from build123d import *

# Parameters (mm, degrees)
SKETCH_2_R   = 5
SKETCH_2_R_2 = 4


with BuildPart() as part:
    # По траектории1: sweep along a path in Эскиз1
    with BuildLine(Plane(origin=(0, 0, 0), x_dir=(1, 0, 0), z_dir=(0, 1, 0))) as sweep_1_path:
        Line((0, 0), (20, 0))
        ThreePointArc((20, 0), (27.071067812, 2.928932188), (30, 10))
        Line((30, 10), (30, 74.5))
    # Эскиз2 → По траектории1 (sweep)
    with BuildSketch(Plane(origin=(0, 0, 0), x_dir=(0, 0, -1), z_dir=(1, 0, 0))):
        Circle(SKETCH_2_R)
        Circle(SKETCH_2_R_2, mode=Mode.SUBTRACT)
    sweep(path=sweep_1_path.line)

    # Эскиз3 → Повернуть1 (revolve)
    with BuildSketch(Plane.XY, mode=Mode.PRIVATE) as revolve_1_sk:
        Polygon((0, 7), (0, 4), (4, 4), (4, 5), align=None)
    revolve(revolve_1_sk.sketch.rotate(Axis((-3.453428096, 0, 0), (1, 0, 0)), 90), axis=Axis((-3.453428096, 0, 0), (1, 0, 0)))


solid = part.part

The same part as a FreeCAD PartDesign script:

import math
import FreeCAD as App
import Part
import Sketcher
from FreeCAD import Vector


def add_polygon(sketch, points):
    """Adds a closed chain of lines whose ends are joined by coincident constraints."""
    first, n = sketch.GeometryCount, len(points)
    for a, b in zip(points, points[1:] + points[:1]):
        sketch.addGeometry(Part.LineSegment(App.Vector(*a, 0), App.Vector(*b, 0)), False)
    for i in range(n):
        sketch.addConstraint(Sketcher.Constraint("Coincident", first + i, 2, first + (i + 1) % n, 1))

doc = App.newDocument("Part")
params = doc.addObject("Spreadsheet::Sheet", "Params")
for row, (alias, value) in enumerate([
    ("sketch1_diameter", "10 mm"),
    ("sketch1_diameter2", "8 mm"),
    ("sketch2_radius", "10 mm"),
    ("sketch2_width", "20 mm"),
    ("sketch2_height", "64.5 mm"),
    ("sketch3_width", "4 mm"),
    ("sketch3_height", "3 mm"),
    ("sketch3_height2", "1 mm"),
    ("revolution_angle", "360 deg"),
], start=1):
    params.set(f"A{row}", alias)
    params.set(f"B{row}", "=" + value)
    params.setAlias(f"B{row}", alias)

body = doc.addObject("PartDesign::Body", "Body")

# Sketch on YZ plane
sketch1 = body.newObject("Sketcher::SketchObject", "Sketch")
sketch1.AttachmentSupport = (doc.getObject("YZ_Plane"), [""])
sketch1.MapMode = "FlatFace"
sketch1.addGeometry([
    Part.Circle(Vector(0, 0, 0), Vector(0, 0, 1), 5),
    Part.Circle(Vector(0, 0, 0), Vector(0, 0, 1), 4),
], False)
sketch1.addConstraint([
    Sketcher.Constraint("Coincident", 0, 3, -1, 1),
    Sketcher.Constraint("Coincident", 1, 3, -1, 1),
    Sketcher.Constraint("Diameter", 0, 10.0),
    Sketcher.Constraint("Diameter", 1, 8.0),
])
sketch1.setExpression("Constraints[2]", "Params.sketch1_diameter")
sketch1.setExpression("Constraints[3]", "Params.sketch1_diameter2")

# Sketch on XZ plane
sketch2 = body.newObject("Sketcher::SketchObject", "Sketch001")
sketch2.AttachmentSupport = (doc.getObject("XZ_Plane"), [""])
sketch2.MapMode = "FlatFace"
sketch2.addGeometry([
    Part.LineSegment(Vector(0, 0, 0), Vector(20, 0, 0)),
    Part.ArcOfCircle(Part.Circle(Vector(20, -10, 0), Vector(0, 0, 1), 10), math.radians(0), math.radians(90)),
    Part.LineSegment(Vector(30, -10, 0), Vector(30, -74, 0)),
], False)
sketch2.addConstraint([
    Sketcher.Constraint("Tangent", 0, 2, 1, 2),
    Sketcher.Constraint("Tangent", 1, 1, 2, 1),
    Sketcher.Constraint("Horizontal", 0),
    Sketcher.Constraint("Vertical", 2),
    Sketcher.Constraint("Coincident", 0, 1, -1, 1),
    Sketcher.Constraint("Radius", 1, 10.0),
    Sketcher.Constraint("DistanceX", 0, 1, 0, 2, 20.0),
    Sketcher.Constraint("DistanceY", 2, 2, 2, 1, 64.5),
])
sketch2.setExpression("Constraints[5]", "Params.sketch2_radius")
sketch2.setExpression("Constraints[6]", "Params.sketch2_width")
sketch2.setExpression("Constraints[7]", "Params.sketch2_height")
doc.recompute()

additivepipe = body.newObject("PartDesign::AdditivePipe", "AdditivePipe")
additivepipe.Profile = sketch1
additivepipe.Spine = (sketch2, ["Edge1", "Edge2", "Edge3"])

# Sketch on XY plane
sketch3 = body.newObject("Sketcher::SketchObject", "Sketch002")
sketch3.AttachmentSupport = (doc.getObject("XY_Plane"), [""])
sketch3.MapMode = "FlatFace"
add_polygon(sketch3, [(0, 7), (0, 4), (4, 4), (4, 5)])  # lines 0-3
sketch3.addConstraint([
    Sketcher.Constraint("Vertical", 0),
    Sketcher.Constraint("Horizontal", 1),
    Sketcher.Constraint("Vertical", 2),
    Sketcher.Constraint("PointOnObject", 0, 2, -2),
    Sketcher.Constraint("DistanceX", 1, 1, 1, 2, 4.0),
    Sketcher.Constraint("DistanceY", 0, 2, 0, 1, 3.0),
    Sketcher.Constraint("DistanceY", 2, 1, 2, 2, 1.0),
    Sketcher.Constraint("DistanceY", -1, 1, 0, 2, 4.0),
])
sketch3.setExpression("Constraints[8]", "Params.sketch3_width")
sketch3.setExpression("Constraints[9]", "Params.sketch3_height")
sketch3.setExpression("Constraints[10]", "Params.sketch3_height2")
revolution = body.newObject("PartDesign::Revolution", "Revolution")
revolution.Profile = sketch3
revolution.ReferenceAxis = (sketch3, ["H_Axis"])
revolution.setExpression("Angle", "Params.revolution_angle")

doc.recompute()
